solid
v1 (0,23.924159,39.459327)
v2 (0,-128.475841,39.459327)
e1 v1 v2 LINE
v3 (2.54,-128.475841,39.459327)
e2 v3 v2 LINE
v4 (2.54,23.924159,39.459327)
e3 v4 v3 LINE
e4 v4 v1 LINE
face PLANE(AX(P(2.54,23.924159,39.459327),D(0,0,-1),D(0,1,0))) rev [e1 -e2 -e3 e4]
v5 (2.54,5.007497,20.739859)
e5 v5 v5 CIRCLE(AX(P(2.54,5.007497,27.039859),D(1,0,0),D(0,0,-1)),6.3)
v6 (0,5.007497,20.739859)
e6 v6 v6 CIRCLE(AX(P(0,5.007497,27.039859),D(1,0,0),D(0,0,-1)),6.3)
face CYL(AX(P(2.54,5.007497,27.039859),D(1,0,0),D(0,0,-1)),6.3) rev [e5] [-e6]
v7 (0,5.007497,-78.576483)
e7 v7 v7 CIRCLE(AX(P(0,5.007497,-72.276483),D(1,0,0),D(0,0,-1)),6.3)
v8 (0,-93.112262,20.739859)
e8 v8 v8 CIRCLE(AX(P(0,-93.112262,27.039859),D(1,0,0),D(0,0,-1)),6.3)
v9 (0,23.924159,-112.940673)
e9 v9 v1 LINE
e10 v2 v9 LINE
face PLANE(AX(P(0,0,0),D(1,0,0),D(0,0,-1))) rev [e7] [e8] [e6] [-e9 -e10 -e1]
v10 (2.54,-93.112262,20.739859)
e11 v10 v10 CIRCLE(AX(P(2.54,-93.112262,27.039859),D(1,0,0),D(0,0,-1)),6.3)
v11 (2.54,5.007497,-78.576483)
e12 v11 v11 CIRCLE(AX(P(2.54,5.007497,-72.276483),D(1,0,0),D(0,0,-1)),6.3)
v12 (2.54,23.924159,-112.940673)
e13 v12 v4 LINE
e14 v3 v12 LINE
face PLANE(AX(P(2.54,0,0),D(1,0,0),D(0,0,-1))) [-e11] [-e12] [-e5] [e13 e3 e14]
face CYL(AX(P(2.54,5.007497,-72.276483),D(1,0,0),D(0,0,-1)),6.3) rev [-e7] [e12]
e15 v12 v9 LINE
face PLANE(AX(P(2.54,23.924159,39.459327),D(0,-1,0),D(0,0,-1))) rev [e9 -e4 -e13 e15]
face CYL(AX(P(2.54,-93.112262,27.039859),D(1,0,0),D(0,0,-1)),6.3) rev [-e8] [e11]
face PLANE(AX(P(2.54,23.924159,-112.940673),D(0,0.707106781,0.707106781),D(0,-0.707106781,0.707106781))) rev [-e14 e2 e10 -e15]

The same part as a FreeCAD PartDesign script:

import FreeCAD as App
import Part
import Sketcher

V = App.Vector
Q = App.Units.Quantity


def add_polygon(sketch, points):
    """Adds a closed chain of lines whose ends are joined by coincident constraints."""
    first, n = sketch.GeometryCount, len(points)
    for a, b in zip(points, points[1:] + points[:1]):
        sketch.addGeometry(Part.LineSegment(App.Vector(*a, 0), App.Vector(*b, 0)), False)
    for i in range(n):
        sketch.addConstraint(Sketcher.Constraint("Coincident", first + i, 2, first + (i + 1) % n, 1))

doc = App.newDocument("Part")
body = doc.addObject("PartDesign::Body", "Body")

# Sketch on YZ plane
sketch1 = body.newObject("Sketcher::SketchObject", "Sketch")
sketch1.AttachmentSupport = (doc.getObject("YZ_Plane"), [""])
sketch1.MapMode = "FlatFace"
add_polygon(sketch1, [(-128, 39), (24, -113), (24, 39)])  # lines 0-2
sketch1.addConstraint(Sketcher.Constraint("Vertical", 1))
sketch1.addConstraint(Sketcher.Constraint("Horizontal", 2))
sketch1.addConstraint(Sketcher.Constraint("Equal", 2, 1))
sketch1.addConstraint(Sketcher.Constraint("DistanceX", 2, 2, 2, 1, Q("6 in")))
sketch1.addConstraint(Sketcher.Constraint("DistanceX", -1, 1, 0, 2, Q("23.924159 mm")))
sketch1.addConstraint(Sketcher.Constraint("DistanceY", 0, 2, -1, 1, Q("112.940673 mm")))
pad1 = body.newObject("PartDesign::Pad", "Pad")
pad1.Profile = sketch1
pad1.Length = Q("0.1 in")

# Sketch on XZ plane
sketch2 = body.newObject("Sketcher::SketchObject", "Sketch001")
sketch2.AttachmentSupport = (doc.getObject("XZ_Plane"), [""])
sketch2.MapMode = "FlatFace"
sketch2.AttachmentOffset = App.Placement(V(0, 0, -5.007497), App.Rotation())
add_polygon(sketch2, [(0, 27), (2.5, 27), (2.5, 20.7), (-22.9, 20.7), (-25.9, 23.7), (0, 23.7)])  # lines 0-5
sketch2.addGeometry(Part.LineSegment(V(2.5, 27, 0), V(-25.9, 27, 0)), True)  # axis
sketch2.addConstraint(Sketcher.Constraint("Horizontal", 0))
sketch2.addConstraint(Sketcher.Constraint("Vertical", 1))
sketch2.addConstraint(Sketcher.Constraint("Horizontal", 2))
sketch2.addConstraint(Sketcher.Constraint("Horizontal", 4))
sketch2.addConstraint(Sketcher.Constraint("Vertical", 5))
sketch2.addConstraint(Sketcher.Constraint("Horizontal", 6))
sketch2.addConstraint(Sketcher.Constraint("Coincident", 6, 1, 0, 2))
sketch2.addConstraint(Sketcher.Constraint("PointOnObject", 4, 2, -2))
sketch2.addConstraint(Sketcher.Constraint("Vertical", 3, 2, 6, 2))
sketch2.addConstraint(Sketcher.Constraint("DistanceX", 2, 2, 2, 1, Q("1 in")))
sketch2.addConstraint(Sketcher.Constraint("DistanceX", 0, 1, 0, 2, Q("0.1 in")))
sketch2.addConstraint(Sketcher.Constraint("Angle", 3, Q("135 deg")))
sketch2.addConstraint(Sketcher.Constraint("DistanceX", 4, 1, 4, 2, Q("25.86 mm")))
sketch2.addConstraint(Sketcher.Constraint("DistanceY", 1, 2, 1, 1, Q("6.3 mm")))
sketch2.addConstraint(Sketcher.Constraint("DistanceY", -1, 1, 0, 2, Q("27.039859 mm")))
groove = body.newObject("PartDesign::Groove", "Groove")
groove.Profile = sketch2
groove.ReferenceAxis = (sketch2, ["Axis0"])
groove.Angle = 360
doc.recompute()

linearpattern = body.newObject("PartDesign::LinearPattern", "LinearPattern")
linearpattern.Originals = [groove]
linearpattern.Direction = (doc.getObject("Z_Axis"), [""])
linearpattern.Mode = "offset"
linearpattern.Offset = 99.316342
linearpattern.Occurrences = 2
linearpattern.Reversed = True
body.Tip = linearpattern
doc.recompute()

linearpattern2 = body.newObject("PartDesign::LinearPattern", "LinearPattern001")
linearpattern2.Originals = [groove]
linearpattern2.Direction = (doc.getObject("Y_Axis"), [""])
linearpattern2.Mode = "offset"
linearpattern2.Offset = 98.119759
linearpattern2.Occurrences = 2
linearpattern2.Reversed = True
body.Tip = linearpattern2

doc.recompute()
